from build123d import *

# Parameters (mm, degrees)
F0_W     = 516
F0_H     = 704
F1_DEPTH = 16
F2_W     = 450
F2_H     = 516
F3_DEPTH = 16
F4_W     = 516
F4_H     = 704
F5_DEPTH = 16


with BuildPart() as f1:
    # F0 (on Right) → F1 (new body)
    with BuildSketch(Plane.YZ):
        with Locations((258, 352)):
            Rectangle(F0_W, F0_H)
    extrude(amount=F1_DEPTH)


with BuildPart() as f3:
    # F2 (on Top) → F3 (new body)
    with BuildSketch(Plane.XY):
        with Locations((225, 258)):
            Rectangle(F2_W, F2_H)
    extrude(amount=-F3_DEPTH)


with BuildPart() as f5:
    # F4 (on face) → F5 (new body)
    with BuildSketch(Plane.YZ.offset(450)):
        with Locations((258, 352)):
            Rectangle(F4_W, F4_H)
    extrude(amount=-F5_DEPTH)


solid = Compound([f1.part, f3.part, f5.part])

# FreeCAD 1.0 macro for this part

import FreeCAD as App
import Part
import Sketcher
from FreeCAD import Vector
Q = App.Units.Quantity


def add_polygon(sketch, points):
    """Adds a closed chain of lines whose ends are joined by coincident constraints."""
    first, n = sketch.GeometryCount, len(points)
    for a, b in zip(points, points[1:] + points[:1]):
        sketch.addGeometry(Part.LineSegment(App.Vector(*a, 0), App.Vector(*b, 0)), False)
    for i in range(n):
        sketch.addConstraint(Sketcher.Constraint("Coincident", first + i, 2, first + (i + 1) % n, 1))

doc = App.newDocument("Part")
params = doc.addObject("Spreadsheet::Sheet", "Params")
for row, (alias, value) in enumerate([
    ("sketch1_width", "516 mm"),
    ("sketch1_height", "704 mm"),
    ("pad1_length", "16 mm"),
    ("sketch2_width", "450 mm"),
    ("sketch2_height", "516 mm"),
    ("pad2_length", "16 mm"),
    ("sketch3_width", "516 mm"),
    ("sketch3_height", "704 mm"),
    ("pad3_length", "16 mm"),
], start=1):
    params.set(f"A{row}", alias)
    params.set(f"B{row}", "=" + value)
    params.setAlias(f"B{row}", alias)

body = doc.addObject("PartDesign::Body", "Body")

# Sketch on YZ plane
sketch1 = body.newObject("Sketcher::SketchObject", "Sketch")
sketch1.AttachmentSupport = (doc.getObject("YZ_Plane"), [""])
sketch1.MapMode = "FlatFace"
add_polygon(sketch1, [(0, 704), (0, 0), (516, 0), (516, 704)])  # lines 0-3
sketch1.addConstraint(Sketcher.Constraint("Vertical", 0))
sketch1.addConstraint(Sketcher.Constraint("Horizontal", 1))
sketch1.addConstraint(Sketcher.Constraint("Vertical", 2))
sketch1.addConstraint(Sketcher.Constraint("Horizontal", 3))
sketch1.addConstraint(Sketcher.Constraint("Coincident", 0, 2, -1, 1))
sketch1.addConstraint(Sketcher.Constraint("DistanceX", 1, 1, 1, 2, Q("516 mm")))
sketch1.addConstraint(Sketcher.Constraint("DistanceY", 0, 2, 0, 1, Q("704 mm")))
sketch1.setExpression("Constraints[9]", "Params.sketch1_width")
sketch1.setExpression("Constraints[10]", "Params.sketch1_height")
pad1 = body.newObject("PartDesign::Pad", "Pad")
pad1.Profile = sketch1
pad1.setExpression("Length", "Params.pad1_length")
body2 = doc.addObject("PartDesign::Body", "Body001")

# Sketch on XY plane
sketch2 = body2.newObject("Sketcher::SketchObject", "Sketch001")
sketch2.AttachmentSupport = (doc.getObject("XY_Plane001"), [""])
sketch2.MapMode = "FlatFace"
add_polygon(sketch2, [(0, 516), (0, 0), (450, 0), (450, 516)])  # lines 0-3
sketch2.addConstraint(Sketcher.Constraint("Vertical", 0))
sketch2.addConstraint(Sketcher.Constraint("Horizontal", 1))
sketch2.addConstraint(Sketcher.Constraint("Vertical", 2))
sketch2.addConstraint(Sketcher.Constraint("Horizontal", 3))
sketch2.addConstraint(Sketcher.Constraint("Coincident", 0, 2, -1, 1))
sketch2.addConstraint(Sketcher.Constraint("DistanceX", 1, 1, 1, 2, Q("450 mm")))
sketch2.addConstraint(Sketcher.Constraint("DistanceY", 0, 2, 0, 1, Q("516 mm")))
sketch2.setExpression("Constraints[9]", "Params.sketch2_width")
sketch2.setExpression("Constraints[10]", "Params.sketch2_height")
pad2 = body2.newObject("PartDesign::Pad", "Pad001")
pad2.Profile = sketch2
pad2.setExpression("Length", "Params.pad2_length")
pad2.Reversed = True
body3 = doc.addObject("PartDesign::Body", "Body002")

# Sketch on YZ plane
sketch3 = body3.newObject("Sketcher::SketchObject", "Sketch002")
sketch3.AttachmentSupport = (doc.getObject("YZ_Plane002"), [""])
sketch3.MapMode = "FlatFace"
sketch3.AttachmentOffset = App.Placement(Vector(0, 0, 450), App.Rotation())
add_polygon(sketch3, [(0, 704), (0, 0), (516, 0), (516, 704)])  # lines 0-3
sketch3.addConstraint(Sketcher.Constraint("Vertical", 0))
sketch3.addConstraint(Sketcher.Constraint("Horizontal", 1))
sketch3.addConstraint(Sketcher.Constraint("Vertical", 2))
sketch3.addConstraint(Sketcher.Constraint("Horizontal", 3))
sketch3.addConstraint(Sketcher.Constraint("Coincident", 0, 2, -1, 1))
sketch3.addConstraint(Sketcher.Constraint("DistanceX", 1, 1, 1, 2, Q("516 mm")))
sketch3.addConstraint(Sketcher.Constraint("DistanceY", 0, 2, 0, 1, Q("704 mm")))
sketch3.setExpression("Constraints[9]", "Params.sketch3_width")
sketch3.setExpression("Constraints[10]", "Params.sketch3_height")
pad3 = body3.newObject("PartDesign::Pad", "Pad002")
pad3.Profile = sketch3
pad3.setExpression("Length", "Params.pad3_length")
pad3.Reversed = True

doc.recompute()
